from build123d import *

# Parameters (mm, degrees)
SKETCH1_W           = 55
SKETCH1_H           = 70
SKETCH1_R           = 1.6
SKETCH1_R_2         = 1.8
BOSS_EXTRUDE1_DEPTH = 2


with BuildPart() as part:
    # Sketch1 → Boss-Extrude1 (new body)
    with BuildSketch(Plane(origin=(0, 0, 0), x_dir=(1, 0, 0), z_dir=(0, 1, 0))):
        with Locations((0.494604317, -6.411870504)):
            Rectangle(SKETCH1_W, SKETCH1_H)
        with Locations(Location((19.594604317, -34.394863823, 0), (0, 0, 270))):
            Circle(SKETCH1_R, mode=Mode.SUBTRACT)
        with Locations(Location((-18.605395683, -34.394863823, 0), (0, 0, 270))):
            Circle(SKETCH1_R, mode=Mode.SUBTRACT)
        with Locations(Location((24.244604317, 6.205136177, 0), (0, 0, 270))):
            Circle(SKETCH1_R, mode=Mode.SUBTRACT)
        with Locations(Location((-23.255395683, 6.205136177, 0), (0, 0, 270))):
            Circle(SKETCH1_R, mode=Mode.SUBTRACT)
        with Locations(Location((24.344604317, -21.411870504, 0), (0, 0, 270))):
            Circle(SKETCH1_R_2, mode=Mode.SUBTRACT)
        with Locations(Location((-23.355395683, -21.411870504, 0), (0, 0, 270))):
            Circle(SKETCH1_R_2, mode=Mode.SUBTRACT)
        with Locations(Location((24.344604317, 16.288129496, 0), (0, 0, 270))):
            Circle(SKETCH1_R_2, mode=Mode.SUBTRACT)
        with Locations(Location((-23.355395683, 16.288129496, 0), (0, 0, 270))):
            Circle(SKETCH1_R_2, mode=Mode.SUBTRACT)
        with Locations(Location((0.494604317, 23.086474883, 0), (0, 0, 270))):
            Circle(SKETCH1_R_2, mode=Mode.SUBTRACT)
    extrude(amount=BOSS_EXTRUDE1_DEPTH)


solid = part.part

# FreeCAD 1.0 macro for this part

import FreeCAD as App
import Part
import Sketcher

V = App.Vector
Q = App.Units.Quantity


def add_polygon(sketch, points):
    """Adds a closed chain of lines whose ends are joined by coincident constraints."""
    first, n = sketch.GeometryCount, len(points)
    for a, b in zip(points, points[1:] + points[:1]):
        sketch.addGeometry(Part.LineSegment(App.Vector(*a, 0), App.Vector(*b, 0)), False)
    for i in range(n):
        sketch.addConstraint(Sketcher.Constraint("Coincident", first + i, 2, first + (i + 1) % n, 1))

doc = App.newDocument("Part")
body = doc.addObject("PartDesign::Body", "Body")

# Sketch on XZ plane
sketch1 = body.newObject("Sketcher::SketchObject", "Sketch")
sketch1.AttachmentSupport = (doc.getObject("XZ_Plane"), [""])
sketch1.MapMode = "FlatFace"
add_polygon(sketch1, [(-27, -28.6), (-27, 41.4), (28, 41.4), (28, -28.6)])  # lines 0-3
sketch1.addGeometry(Part.Circle(V(-18.6, 34.4, 0), V(0, 0, 1), 1.6), False)  # 4
sketch1.addGeometry(Part.Circle(V(-23.4, 21.4, 0), V(0, 0, 1), 1.8), False)  # 5
sketch1.addGeometry(Part.Circle(V(19.6, 34.4, 0), V(0, 0, 1), 1.6), False)  # 6
sketch1.addGeometry(Part.Circle(V(24.3, 21.4, 0), V(0, 0, 1), 1.8), False)  # 7
sketch1.addGeometry(Part.Circle(V(-23.3, -6.2, 0), V(0, 0, 1), 1.6), False)  # 8
sketch1.addGeometry(Part.Circle(V(-23.4, -16.3, 0), V(0, 0, 1), 1.8), False)  # 9
sketch1.addGeometry(Part.Circle(V(24.2, -6.2, 0), V(0, 0, 1), 1.6), False)  # 10
sketch1.addGeometry(Part.Circle(V(0.5, -23.1, 0), V(0, 0, 1), 1.8), False)  # 11
sketch1.addGeometry(Part.Circle(V(24.3, -16.3, 0), V(0, 0, 1), 1.8), False)  # 12
sketch1.addConstraint([
    Sketcher.Constraint("Vertical", 0),
    Sketcher.Constraint("Horizontal", 1),
    Sketcher.Constraint("Vertical", 2),
    Sketcher.Constraint("Horizontal", 3),
    Sketcher.Constraint("Equal", 4, 6),
    Sketcher.Constraint("Equal", 5, 7),
    Sketcher.Constraint("Equal", 6, 8),
    Sketcher.Constraint("Equal", 7, 9),
    Sketcher.Constraint("Equal", 8, 10),
    Sketcher.Constraint("Equal", 9, 11),
    Sketcher.Constraint("Equal", 11, 12),
    Sketcher.Constraint("Horizontal", 4, 3, 6, 3),
    Sketcher.Constraint("Horizontal", 5, 3, 7, 3),
    Sketcher.Constraint("Horizontal", 8, 3, 10, 3),
    Sketcher.Constraint("Horizontal", 9, 3, 12, 3),
    Sketcher.Constraint("Vertical", 5, 3, 9, 3),
    Sketcher.Constraint("Vertical", 7, 3, 12, 3),
    Sketcher.Constraint("Diameter", 4, Q("3.2 mm")),
    Sketcher.Constraint("Diameter", 5, Q("3.6 mm")),
    Sketcher.Constraint("DistanceX", 1, 1, 1, 2, Q("55 mm")),
    Sketcher.Constraint("DistanceY", 0, 1, 0, 2, Q("70 mm")),
    Sketcher.Constraint("DistanceY", 5, 3, 0, 2, Q("20 mm")),
    Sketcher.Constraint("DistanceX", 4, 3, 6, 3, Q("38.2 mm")),
    Sketcher.Constraint("DistanceX", 5, 3, 7, 3, Q("47.7 mm")),
    Sketcher.Constraint("DistanceX", 5, 3, 8, 3, Q("0.1 mm")),
    Sketcher.Constraint("DistanceY", 8, 3, 4, 3, Q("40.6 mm")),
    Sketcher.Constraint("DistanceY", 9, 3, 5, 3, Q("37.7 mm")),
    Sketcher.Constraint("DistanceX", 10, 3, 7, 3, Q("0.1 mm")),
    Sketcher.Constraint("DistanceX", 0, 2, 4, 3, Q("8.4 mm")),
    Sketcher.Constraint("DistanceX", 11, 3, 2, 2, Q("27.5 mm")),
    Sketcher.Constraint("DistanceX", 5, 3, 4, 3, Q("4.75 mm")),
    Sketcher.Constraint("DistanceY", -1, 1, 5, 3, Q("21.411871 mm")),
    Sketcher.Constraint("DistanceY", 11, 3, 8, 3, Q("16.881339 mm")),
    Sketcher.Constraint("DistanceX", 4, 3, -1, 1, Q("18.605396 mm")),
    Sketcher.Constraint("DistanceY", -1, 1, 4, 3, Q("34.394864 mm")),
])
pad1 = body.newObject("PartDesign::Pad", "Pad")
pad1.Profile = sketch1
pad1.Length = 2
pad1.Reversed = True

doc.recompute()
